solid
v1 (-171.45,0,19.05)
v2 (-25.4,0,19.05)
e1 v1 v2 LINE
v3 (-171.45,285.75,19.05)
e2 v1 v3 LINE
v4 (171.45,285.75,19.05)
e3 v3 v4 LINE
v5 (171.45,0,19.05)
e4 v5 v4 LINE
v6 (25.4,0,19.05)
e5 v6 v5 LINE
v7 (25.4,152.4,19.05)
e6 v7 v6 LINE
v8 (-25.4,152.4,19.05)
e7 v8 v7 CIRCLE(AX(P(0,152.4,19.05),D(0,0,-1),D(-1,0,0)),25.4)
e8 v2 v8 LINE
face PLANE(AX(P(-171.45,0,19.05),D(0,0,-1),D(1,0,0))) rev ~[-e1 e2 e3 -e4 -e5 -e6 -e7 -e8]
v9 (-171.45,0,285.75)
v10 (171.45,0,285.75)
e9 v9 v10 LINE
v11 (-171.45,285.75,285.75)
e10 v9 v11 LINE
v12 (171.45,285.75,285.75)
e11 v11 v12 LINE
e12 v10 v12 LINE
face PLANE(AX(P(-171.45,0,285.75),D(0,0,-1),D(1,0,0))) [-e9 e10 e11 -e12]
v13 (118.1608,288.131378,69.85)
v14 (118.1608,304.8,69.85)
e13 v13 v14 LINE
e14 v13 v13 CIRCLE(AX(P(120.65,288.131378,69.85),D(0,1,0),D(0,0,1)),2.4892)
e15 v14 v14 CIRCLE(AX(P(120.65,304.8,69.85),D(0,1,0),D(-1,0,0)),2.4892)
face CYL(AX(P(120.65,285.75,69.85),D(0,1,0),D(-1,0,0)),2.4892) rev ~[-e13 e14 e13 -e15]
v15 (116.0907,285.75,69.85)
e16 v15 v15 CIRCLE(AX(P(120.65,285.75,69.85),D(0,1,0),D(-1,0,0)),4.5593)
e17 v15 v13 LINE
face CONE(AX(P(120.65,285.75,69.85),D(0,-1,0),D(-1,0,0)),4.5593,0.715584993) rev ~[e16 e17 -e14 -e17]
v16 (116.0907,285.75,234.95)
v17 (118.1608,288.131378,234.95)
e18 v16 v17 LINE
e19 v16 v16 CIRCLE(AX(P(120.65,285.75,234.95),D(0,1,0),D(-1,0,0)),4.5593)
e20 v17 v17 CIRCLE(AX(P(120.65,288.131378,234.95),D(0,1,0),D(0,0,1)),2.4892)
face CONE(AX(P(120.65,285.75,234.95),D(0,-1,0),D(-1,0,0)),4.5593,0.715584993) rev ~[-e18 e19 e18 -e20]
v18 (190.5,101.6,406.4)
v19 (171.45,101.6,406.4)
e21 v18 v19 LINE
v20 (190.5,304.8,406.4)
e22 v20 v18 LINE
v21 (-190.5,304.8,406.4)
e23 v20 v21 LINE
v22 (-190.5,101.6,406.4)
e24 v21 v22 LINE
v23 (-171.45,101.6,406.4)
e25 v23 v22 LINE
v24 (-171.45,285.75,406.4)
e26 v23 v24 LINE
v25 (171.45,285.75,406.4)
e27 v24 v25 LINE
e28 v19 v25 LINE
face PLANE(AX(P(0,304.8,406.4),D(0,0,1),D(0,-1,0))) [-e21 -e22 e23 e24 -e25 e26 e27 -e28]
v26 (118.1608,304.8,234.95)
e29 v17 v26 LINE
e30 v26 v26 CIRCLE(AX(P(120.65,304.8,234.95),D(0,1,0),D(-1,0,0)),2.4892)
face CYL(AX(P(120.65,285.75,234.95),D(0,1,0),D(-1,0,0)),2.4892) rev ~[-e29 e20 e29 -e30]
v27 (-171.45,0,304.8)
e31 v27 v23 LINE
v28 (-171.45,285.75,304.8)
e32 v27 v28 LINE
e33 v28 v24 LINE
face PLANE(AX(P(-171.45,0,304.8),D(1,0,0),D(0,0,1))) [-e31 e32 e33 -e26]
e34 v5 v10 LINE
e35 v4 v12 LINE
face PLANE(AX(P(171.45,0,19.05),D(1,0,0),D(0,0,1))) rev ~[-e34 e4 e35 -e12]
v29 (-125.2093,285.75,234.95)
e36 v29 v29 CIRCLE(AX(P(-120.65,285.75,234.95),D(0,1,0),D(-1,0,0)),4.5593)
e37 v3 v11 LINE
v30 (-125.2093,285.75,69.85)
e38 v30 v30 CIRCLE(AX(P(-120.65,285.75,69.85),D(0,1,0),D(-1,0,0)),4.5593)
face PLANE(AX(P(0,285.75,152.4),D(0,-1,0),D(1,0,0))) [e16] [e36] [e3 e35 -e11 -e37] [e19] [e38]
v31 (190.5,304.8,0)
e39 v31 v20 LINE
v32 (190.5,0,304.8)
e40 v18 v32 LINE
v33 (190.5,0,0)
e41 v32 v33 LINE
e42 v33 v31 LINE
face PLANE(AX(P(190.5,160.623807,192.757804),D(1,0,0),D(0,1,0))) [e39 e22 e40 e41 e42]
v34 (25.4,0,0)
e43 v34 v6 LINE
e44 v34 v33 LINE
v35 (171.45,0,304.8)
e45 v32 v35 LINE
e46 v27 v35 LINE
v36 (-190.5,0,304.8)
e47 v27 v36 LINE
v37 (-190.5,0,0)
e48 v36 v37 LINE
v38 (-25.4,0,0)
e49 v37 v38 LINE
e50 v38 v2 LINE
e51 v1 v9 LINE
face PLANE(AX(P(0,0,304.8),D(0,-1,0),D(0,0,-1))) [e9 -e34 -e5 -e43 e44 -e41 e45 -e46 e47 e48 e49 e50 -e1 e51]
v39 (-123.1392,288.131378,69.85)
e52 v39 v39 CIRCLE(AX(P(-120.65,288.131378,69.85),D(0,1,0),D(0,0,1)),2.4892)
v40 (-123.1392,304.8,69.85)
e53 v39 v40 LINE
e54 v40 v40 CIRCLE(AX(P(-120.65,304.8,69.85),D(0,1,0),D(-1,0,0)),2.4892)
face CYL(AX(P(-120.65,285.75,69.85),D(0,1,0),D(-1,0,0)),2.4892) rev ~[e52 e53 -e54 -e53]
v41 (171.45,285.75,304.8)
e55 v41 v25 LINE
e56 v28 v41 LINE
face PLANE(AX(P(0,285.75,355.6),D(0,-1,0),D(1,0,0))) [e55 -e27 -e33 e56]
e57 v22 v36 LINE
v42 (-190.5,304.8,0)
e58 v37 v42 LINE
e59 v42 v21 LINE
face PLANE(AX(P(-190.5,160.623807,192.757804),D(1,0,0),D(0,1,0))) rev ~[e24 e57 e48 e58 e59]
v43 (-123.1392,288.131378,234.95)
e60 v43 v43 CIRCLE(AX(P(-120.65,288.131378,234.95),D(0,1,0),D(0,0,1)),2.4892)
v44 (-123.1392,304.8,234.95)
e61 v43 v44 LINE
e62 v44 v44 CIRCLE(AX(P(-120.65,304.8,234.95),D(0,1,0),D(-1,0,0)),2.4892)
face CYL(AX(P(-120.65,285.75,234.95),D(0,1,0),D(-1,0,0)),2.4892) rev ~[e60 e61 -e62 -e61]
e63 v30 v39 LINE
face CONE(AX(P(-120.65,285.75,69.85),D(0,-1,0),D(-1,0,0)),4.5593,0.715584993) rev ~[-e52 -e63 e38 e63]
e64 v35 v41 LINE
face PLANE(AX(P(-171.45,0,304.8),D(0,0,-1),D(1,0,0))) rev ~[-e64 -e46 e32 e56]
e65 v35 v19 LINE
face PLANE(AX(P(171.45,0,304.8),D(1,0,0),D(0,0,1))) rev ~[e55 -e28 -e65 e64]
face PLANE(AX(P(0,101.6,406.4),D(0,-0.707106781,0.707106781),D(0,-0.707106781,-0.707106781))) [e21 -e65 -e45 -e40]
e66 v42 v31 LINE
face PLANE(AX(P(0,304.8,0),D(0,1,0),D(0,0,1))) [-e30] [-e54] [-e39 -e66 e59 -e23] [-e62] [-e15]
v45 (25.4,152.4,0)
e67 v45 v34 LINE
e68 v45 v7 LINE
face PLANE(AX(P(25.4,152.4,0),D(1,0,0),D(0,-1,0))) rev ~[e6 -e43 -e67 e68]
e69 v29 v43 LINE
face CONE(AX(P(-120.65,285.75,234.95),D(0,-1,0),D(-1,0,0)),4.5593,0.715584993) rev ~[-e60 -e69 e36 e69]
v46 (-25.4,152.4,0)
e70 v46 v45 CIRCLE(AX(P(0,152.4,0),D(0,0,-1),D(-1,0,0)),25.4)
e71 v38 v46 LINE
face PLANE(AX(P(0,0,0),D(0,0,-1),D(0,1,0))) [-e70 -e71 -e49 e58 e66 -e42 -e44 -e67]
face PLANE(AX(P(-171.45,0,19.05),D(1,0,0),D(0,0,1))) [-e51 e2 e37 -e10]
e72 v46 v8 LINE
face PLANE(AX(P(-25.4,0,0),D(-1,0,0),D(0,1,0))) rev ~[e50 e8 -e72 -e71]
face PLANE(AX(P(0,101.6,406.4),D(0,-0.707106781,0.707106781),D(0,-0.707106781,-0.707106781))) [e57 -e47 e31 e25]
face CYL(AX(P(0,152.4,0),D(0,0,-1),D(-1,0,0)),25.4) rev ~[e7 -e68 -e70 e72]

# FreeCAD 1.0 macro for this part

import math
import FreeCAD as App
import Part
import Sketcher
from FreeCAD import Vector
Q = App.Units.Quantity


def add_polygon(sketch, points):
    """Adds a closed chain of lines whose ends are joined by coincident constraints."""
    first, n = sketch.GeometryCount, len(points)
    for a, b in zip(points, points[1:] + points[:1]):
        sketch.addGeometry(Part.LineSegment(App.Vector(*a, 0), App.Vector(*b, 0)), False)
    for i in range(n):
        sketch.addConstraint(Sketcher.Constraint("Coincident", first + i, 2, first + (i + 1) % n, 1))

doc = App.newDocument("Part")
params = doc.addObject("Spreadsheet::Sheet", "Params")
for row, (alias, value) in enumerate([
    ("sketch1_width", "12 in"),
    ("sketch1_width2", "8 in"),
    ("sketch1_height", "16 in"),
    ("pad1_length", "15 in"),
    ("sketch2_height", "4 in"),
    ("sketch2_width", "13.5 in"),
    ("pocket1_length", "11.25 in"),
    ("sketch3_width", "13.5 in"),
    ("sketch3_height", "10.5 in"),
    ("pocket2_length", "11.25 in"),
    ("sketch4_radius", "1 in"),
    ("sketch4_height", "6 in"),
    ("pocket3_length", "0.75 in"),
    ("sketch5_diameter", "0.196 in"),
    ("hole_diameter", "0.196 in"),
    ("hole_csink_diameter", "0.359 in"),
], start=1):
    params.set(f"A{row}", alias)
    params.set(f"B{row}", "=" + value)
    params.setAlias(f"B{row}", alias)

body = doc.addObject("PartDesign::Body", "Body")

sketch1 = doc.addObject("Sketcher::SketchObject", "Sketch")
body.addObject(sketch1)
sketch1.AttachmentSupport = (doc.YZ_Plane, [""])
sketch1.MapMode = "FlatFace"
add_polygon(sketch1, [(0, 305), (0, 0), (305, 0), (305, 406), (102, 406)])
sketch1.addConstraint([
    Sketcher.Constraint("Vertical", 0),
    Sketcher.Constraint("Horizontal", 1),
    Sketcher.Constraint("Vertical", 2),
    Sketcher.Constraint("Horizontal", 3),
    Sketcher.Constraint("Coincident", 0, 2, -1, 1),
    Sketcher.Constraint("Equal", 1, 0),
    Sketcher.Constraint("DistanceX", 1, 1, 1, 2, Q("12 in")),
    Sketcher.Constraint("DistanceX", 3, 2, 3, 1, Q("8 in")),
    Sketcher.Constraint("DistanceY", 2, 1, 2, 2, Q("16 in")),
])
sketch1.setExpression("Constraints[11]", "Params.sketch1_width")
sketch1.setExpression("Constraints[12]", "Params.sketch1_width2")
sketch1.setExpression("Constraints[13]", "Params.sketch1_height")
pad1 = doc.addObject("PartDesign::Pad", "Pad")
body.addObject(pad1)
pad1.Profile = sketch1
pad1.setExpression("Length", "Params.pad1_length")
pad1.Midplane = True

sketch2 = doc.addObject("Sketcher::SketchObject", "Sketch001")
body.addObject(sketch2)
sketch2.AttachmentSupport = (doc.XZ_Plane, [""])
sketch2.MapMode = "FlatFace"
add_polygon(sketch2, [(-171, 406), (-171, 305), (171, 305), (171, 406)])
sketch2.addConstraint([
    Sketcher.Constraint("Vertical", 0),
    Sketcher.Constraint("Horizontal", 1),
    Sketcher.Constraint("Vertical", 2),
    Sketcher.Constraint("Horizontal", 3),
    Sketcher.Constraint("DistanceY", 0, 2, 0, 1, Q("4 in")),
    Sketcher.Constraint("DistanceX", 1, 1, 1, 2, Q("13.5 in")),
    Sketcher.Constraint("DistanceY", -1, 1, 0, 2, Q("12 in")),
    Sketcher.Constraint("DistanceX", 0, 2, -1, 1, Q("6.75 in")),
])
sketch2.setExpression("Constraints[8]", "Params.sketch2_height")
sketch2.setExpression("Constraints[9]", "Params.sketch2_width")
pocket1 = doc.addObject("PartDesign::Pocket", "Pocket")
body.addObject(pocket1)
pocket1.Profile = sketch2
pocket1.setExpression("Length", "Params.pocket1_length")

sketch3 = doc.addObject("Sketcher::SketchObject", "Sketch002")
body.addObject(sketch3)
sketch3.AttachmentSupport = (doc.XZ_Plane, [""])
sketch3.MapMode = "FlatFace"
add_polygon(sketch3, [(-171, 286), (-171, 19), (171, 19), (171, 286)])
sketch3.addConstraint([
    Sketcher.Constraint("Vertical", 0),
    Sketcher.Constraint("Horizontal", 1),
    Sketcher.Constraint("Vertical", 2),
    Sketcher.Constraint("Horizontal", 3),
    Sketcher.Constraint("DistanceX", 1, 1, 1, 2, Q("13.5 in")),
    Sketcher.Constraint("DistanceY", 0, 2, 0, 1, Q("10.5 in")),
    Sketcher.Constraint("DistanceX", 0, 2, -1, 1, Q("6.75 in")),
    Sketcher.Constraint("DistanceY", -1, 1, 0, 2, Q("0.75 in")),
])
sketch3.setExpression("Constraints[8]", "Params.sketch3_width")
sketch3.setExpression("Constraints[9]", "Params.sketch3_height")
pocket2 = doc.addObject("PartDesign::Pocket", "Pocket001")
body.addObject(pocket2)
pocket2.Profile = sketch3
pocket2.setExpression("Length", "Params.pocket2_length")

sketch4 = doc.addObject("Sketcher::SketchObject", "Sketch003")
body.addObject(sketch4)
sketch4.AttachmentSupport = (doc.XY_Plane, [""])
sketch4.MapMode = "FlatFace"
sketch4.addGeometry([
    Part.LineSegment(Vector(25, 0, 0), Vector(-25, 0, 0)),
    Part.LineSegment(Vector(-25, 0, 0), Vector(-25, 152, 0)),
    Part.ArcOfCircle(Part.Circle(Vector(0, 152, 0), Vector(0, 0, 1), 25), math.radians(0), math.radians(180)),
    Part.LineSegment(Vector(25, 152, 0), Vector(25, 0, 0)),
], False)
sketch4.addConstraint([
    Sketcher.Constraint("Coincident", 0, 2, 1, 1),
    Sketcher.Constraint("Tangent", 1, 2, 2, 2),
    Sketcher.Constraint("Tangent", 2, 1, 3, 1),
    Sketcher.Constraint("Coincident", 3, 2, 0, 1),
    Sketcher.Constraint("Horizontal", 0),
    Sketcher.Constraint("Vertical", 1),
    Sketcher.Constraint("Vertical", 3),
    Sketcher.Constraint("Symmetric", 0, 2, 3, 2, -1, 1),
    Sketcher.Constraint("Radius", 2, Q("1 in")),
    Sketcher.Constraint("DistanceY", 1, 1, 1, 2, Q("6 in")),
])
sketch4.setExpression("Constraints[8]", "Params.sketch4_radius")
sketch4.setExpression("Constraints[9]", "Params.sketch4_height")
pocket3 = doc.addObject("PartDesign::Pocket", "Pocket002")
body.addObject(pocket3)
pocket3.Profile = sketch4
pocket3.setExpression("Length", "Params.pocket3_length")
pocket3.Reversed = True

sketch5 = doc.addObject("Sketcher::SketchObject", "Sketch004")
body.addObject(sketch5)
sketch5.AttachmentSupport = (doc.XZ_Plane, [""])
sketch5.MapMode = "FlatFace"
sketch5.AttachmentOffset = App.Placement(Vector(0, 0, -11.25 * 25.4), App.Rotation())
sketch5.addGeometry([
    Part.Circle(Vector(120.7, 69.8, 0), Vector(0, 0, 1), 2.5),
    Part.Circle(Vector(120.7, 234.9, 0), Vector(0, 0, 1), 2.5),
    Part.Circle(Vector(-120.7, 234.9, 0), Vector(0, 0, 1), 2.5),
    Part.Circle(Vector(-120.7, 69.8, 0), Vector(0, 0, 1), 2.5),
], False)
sketch5.addConstraint([
    Sketcher.Constraint("Equal", 0, 1),
    Sketcher.Constraint("Equal", 1, 2),
    Sketcher.Constraint("Equal", 2, 3),
    Sketcher.Constraint("Symmetric", 1, 3, 2, 3, -2),
    Sketcher.Constraint("Symmetric", 0, 3, 3, 3, -2),
    Sketcher.Constraint("Vertical", 0, 3, 1, 3),
    Sketcher.Constraint("Diameter", 0, Q("0.196 in")),
    Sketcher.Constraint("DistanceY", 0, 3, 1, 3, Q("6.5 in")),
    Sketcher.Constraint("DistanceX", 2, 3, 1, 3, Q("9.5 in")),
    Sketcher.Constraint("DistanceY", -1, 1, 0, 3, Q("2.75 in")),
])
sketch5.setExpression("Constraints[6]", "Params.sketch5_diameter")
doc.recompute()
hole = doc.addObject("PartDesign::Hole", "Hole")
body.addObject(hole)
hole.Profile = sketch5
hole.ThreadType = "None"
hole.setExpression("Diameter", "Params.hole_diameter")
hole.DepthType = "ThroughAll"
hole.HoleCutType = "Countersink"
hole.setExpression("HoleCutDiameter", "Params.hole_csink_diameter")
hole.HoleCutCountersinkAngle = 82

doc.recompute()
